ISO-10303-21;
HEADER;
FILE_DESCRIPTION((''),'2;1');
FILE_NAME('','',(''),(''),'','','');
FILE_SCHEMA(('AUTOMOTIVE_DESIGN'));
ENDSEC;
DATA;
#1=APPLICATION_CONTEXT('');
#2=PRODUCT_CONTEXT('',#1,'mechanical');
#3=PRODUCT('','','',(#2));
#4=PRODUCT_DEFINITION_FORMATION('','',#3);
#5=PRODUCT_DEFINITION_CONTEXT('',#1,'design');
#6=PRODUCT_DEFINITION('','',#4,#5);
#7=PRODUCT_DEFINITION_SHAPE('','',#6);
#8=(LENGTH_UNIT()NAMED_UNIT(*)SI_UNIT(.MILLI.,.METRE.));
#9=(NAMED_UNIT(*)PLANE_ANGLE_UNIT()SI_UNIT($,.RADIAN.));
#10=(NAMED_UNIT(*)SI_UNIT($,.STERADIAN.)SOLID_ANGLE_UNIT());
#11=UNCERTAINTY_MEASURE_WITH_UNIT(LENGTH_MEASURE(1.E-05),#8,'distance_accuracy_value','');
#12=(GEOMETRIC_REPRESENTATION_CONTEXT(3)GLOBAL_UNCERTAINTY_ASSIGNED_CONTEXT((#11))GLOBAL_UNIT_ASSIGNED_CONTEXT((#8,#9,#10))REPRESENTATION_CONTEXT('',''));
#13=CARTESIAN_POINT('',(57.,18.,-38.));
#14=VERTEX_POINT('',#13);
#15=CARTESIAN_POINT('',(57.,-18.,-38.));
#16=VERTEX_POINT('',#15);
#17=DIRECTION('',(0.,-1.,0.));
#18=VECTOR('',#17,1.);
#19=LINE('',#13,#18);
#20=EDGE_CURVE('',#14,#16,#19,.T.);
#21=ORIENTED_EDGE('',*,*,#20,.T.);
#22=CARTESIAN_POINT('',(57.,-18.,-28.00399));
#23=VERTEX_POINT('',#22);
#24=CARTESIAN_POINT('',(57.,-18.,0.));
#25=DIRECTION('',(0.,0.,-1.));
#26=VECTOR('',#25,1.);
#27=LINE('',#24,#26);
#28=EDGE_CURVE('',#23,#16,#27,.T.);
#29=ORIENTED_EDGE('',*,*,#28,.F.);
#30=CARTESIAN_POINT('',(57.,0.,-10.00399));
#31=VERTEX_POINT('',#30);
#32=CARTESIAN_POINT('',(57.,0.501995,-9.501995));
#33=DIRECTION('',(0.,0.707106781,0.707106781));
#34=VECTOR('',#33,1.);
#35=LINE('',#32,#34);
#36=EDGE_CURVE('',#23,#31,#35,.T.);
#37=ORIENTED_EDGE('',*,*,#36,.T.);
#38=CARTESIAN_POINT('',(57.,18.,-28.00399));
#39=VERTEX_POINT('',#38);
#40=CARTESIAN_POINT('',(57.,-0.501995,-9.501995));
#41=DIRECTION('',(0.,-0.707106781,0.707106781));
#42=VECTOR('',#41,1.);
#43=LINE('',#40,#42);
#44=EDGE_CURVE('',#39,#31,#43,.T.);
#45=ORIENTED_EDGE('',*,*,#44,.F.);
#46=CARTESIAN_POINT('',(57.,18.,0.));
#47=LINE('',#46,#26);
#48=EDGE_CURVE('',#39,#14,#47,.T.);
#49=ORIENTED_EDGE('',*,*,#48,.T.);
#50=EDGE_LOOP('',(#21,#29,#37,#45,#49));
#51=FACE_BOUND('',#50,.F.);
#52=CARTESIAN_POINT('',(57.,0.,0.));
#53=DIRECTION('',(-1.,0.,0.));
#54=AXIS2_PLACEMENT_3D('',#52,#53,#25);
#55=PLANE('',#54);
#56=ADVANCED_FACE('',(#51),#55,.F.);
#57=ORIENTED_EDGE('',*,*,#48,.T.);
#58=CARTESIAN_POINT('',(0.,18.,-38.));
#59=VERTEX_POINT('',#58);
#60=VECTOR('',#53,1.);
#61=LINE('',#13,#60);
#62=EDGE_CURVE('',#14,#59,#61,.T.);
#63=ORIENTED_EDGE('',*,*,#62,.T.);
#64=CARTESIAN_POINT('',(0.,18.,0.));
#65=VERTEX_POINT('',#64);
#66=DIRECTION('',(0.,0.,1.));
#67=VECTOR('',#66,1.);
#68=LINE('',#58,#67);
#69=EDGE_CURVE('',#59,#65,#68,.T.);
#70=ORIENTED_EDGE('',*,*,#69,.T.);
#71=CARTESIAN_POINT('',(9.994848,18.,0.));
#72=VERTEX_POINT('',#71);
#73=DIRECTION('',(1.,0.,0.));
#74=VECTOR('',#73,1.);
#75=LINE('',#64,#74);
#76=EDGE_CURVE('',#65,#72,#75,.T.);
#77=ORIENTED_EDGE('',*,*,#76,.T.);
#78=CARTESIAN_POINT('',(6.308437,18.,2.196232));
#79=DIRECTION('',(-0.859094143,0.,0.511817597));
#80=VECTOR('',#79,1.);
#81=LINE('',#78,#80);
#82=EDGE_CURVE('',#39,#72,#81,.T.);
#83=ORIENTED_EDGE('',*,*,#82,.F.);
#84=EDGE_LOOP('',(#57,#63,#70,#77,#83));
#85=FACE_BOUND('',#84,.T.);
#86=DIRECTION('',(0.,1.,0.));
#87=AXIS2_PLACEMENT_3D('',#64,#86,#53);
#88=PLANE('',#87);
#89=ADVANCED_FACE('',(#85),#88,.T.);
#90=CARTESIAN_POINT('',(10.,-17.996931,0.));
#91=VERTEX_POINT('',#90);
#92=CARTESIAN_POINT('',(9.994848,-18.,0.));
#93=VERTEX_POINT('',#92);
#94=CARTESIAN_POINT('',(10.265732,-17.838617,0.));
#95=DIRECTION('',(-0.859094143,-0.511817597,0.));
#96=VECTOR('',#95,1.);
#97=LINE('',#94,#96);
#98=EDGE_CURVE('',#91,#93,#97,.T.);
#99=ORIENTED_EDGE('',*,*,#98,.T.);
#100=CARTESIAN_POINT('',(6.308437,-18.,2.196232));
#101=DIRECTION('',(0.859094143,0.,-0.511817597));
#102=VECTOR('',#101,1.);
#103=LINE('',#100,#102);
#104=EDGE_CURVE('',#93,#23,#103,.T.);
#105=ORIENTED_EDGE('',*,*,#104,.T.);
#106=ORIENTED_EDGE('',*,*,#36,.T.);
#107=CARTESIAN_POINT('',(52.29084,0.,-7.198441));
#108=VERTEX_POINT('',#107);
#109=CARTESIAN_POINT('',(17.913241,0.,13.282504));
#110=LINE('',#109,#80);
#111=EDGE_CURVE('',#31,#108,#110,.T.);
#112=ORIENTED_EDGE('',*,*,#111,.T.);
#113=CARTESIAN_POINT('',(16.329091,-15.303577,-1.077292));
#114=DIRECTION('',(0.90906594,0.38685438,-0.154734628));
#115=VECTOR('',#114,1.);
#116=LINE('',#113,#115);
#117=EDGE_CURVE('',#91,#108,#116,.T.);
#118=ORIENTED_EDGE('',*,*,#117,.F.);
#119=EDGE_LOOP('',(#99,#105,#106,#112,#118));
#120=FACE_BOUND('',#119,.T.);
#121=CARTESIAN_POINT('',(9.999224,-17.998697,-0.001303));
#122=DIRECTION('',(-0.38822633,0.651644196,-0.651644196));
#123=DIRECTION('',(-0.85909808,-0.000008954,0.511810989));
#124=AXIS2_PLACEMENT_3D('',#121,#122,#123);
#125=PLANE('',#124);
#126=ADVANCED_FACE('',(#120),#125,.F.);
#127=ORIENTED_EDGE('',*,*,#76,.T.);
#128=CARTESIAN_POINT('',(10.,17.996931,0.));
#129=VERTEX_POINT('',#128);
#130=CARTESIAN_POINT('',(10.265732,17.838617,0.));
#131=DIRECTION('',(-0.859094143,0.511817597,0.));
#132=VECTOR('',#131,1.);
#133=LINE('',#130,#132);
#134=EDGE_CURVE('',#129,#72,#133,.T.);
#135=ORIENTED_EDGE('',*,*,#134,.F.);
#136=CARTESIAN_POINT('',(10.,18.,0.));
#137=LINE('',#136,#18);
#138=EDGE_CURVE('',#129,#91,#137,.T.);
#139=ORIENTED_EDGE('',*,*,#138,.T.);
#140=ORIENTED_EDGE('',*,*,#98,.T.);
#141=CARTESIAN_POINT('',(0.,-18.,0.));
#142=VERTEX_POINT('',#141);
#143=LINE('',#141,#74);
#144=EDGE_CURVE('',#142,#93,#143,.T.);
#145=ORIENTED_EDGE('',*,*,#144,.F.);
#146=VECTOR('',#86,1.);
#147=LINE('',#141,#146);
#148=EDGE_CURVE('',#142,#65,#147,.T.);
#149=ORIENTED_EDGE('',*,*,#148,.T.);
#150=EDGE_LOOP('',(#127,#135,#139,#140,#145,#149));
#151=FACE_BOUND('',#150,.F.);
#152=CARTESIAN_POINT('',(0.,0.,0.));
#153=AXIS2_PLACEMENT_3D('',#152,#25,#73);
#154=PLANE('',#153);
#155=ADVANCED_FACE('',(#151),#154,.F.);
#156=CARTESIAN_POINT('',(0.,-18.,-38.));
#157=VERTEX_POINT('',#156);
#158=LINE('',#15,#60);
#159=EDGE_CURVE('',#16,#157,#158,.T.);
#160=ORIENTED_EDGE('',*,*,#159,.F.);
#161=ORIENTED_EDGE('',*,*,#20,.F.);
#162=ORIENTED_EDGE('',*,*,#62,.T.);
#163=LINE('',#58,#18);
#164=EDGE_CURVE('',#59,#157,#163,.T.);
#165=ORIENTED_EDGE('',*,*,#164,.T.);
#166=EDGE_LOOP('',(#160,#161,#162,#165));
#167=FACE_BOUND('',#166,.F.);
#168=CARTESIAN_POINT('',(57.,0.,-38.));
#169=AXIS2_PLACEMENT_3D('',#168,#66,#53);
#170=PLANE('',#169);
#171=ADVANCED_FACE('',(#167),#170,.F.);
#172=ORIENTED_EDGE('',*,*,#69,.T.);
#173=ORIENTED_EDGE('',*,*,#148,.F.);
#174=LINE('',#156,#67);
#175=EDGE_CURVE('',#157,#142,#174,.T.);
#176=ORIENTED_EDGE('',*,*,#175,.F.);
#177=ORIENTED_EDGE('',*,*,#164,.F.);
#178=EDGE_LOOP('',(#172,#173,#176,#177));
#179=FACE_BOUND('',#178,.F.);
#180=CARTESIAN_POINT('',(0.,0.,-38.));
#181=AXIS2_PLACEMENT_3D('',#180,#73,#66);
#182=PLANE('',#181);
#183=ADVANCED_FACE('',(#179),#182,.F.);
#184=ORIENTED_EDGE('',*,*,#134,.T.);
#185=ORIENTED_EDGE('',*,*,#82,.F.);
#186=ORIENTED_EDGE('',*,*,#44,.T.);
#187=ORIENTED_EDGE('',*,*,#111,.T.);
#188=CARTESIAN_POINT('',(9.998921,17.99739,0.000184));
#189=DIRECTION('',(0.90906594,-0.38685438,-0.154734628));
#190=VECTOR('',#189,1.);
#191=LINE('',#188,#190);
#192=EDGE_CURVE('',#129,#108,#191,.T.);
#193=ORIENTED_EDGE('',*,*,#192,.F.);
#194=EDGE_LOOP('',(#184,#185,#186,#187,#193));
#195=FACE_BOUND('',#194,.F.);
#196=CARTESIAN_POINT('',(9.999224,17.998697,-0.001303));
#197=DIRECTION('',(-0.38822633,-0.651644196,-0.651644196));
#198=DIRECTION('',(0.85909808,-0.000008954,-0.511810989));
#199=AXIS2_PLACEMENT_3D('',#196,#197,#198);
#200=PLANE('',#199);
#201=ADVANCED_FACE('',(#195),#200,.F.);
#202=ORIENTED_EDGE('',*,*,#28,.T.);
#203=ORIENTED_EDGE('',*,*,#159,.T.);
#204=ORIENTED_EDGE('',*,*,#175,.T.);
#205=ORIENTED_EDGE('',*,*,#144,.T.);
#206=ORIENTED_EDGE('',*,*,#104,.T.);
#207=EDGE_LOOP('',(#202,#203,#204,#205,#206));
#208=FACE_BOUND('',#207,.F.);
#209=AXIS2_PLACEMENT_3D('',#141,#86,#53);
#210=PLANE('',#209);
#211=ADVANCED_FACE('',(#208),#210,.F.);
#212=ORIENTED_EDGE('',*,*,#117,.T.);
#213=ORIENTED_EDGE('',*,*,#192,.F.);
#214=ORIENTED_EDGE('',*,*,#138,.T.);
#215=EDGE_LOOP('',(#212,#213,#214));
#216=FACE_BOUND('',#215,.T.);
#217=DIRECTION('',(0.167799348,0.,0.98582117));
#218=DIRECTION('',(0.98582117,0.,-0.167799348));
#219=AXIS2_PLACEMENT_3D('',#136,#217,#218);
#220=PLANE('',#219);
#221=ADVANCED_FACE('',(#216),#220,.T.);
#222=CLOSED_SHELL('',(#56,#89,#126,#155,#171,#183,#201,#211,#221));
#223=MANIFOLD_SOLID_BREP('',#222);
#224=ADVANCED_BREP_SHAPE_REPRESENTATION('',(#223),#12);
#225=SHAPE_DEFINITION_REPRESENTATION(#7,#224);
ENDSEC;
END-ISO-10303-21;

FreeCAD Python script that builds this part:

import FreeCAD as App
import Part
import Sketcher


def add_polygon(sketch, points):
    """Adds a closed chain of lines whose ends are joined by coincident constraints."""
    first, n = sketch.GeometryCount, len(points)
    for a, b in zip(points, points[1:] + points[:1]):
        sketch.addGeometry(Part.LineSegment(App.Vector(*a, 0), App.Vector(*b, 0)), False)
    for i in range(n):
        sketch.addConstraint(Sketcher.Constraint("Coincident", first + i, 2, first + (i + 1) % n, 1))

doc = App.newDocument("Part")
body = doc.addObject("PartDesign::Body", "Body")

# Sketch on XZ plane
sketch1 = doc.addObject("Sketcher::SketchObject", "Sketch")
body.addObject(sketch1)
sketch1.AttachmentSupport = (doc.XZ_Plane, [""])
sketch1.MapMode = "FlatFace"
add_polygon(sketch1, [(0, -38), (0, 0), (57, 0), (57, -38)])  # lines 0-3
sketch1.addConstraint([
    Sketcher.Constraint("Vertical", 0),
    Sketcher.Constraint("Horizontal", 1),
    Sketcher.Constraint("Vertical", 2),
    Sketcher.Constraint("Horizontal", 3),
    Sketcher.Constraint("Coincident", 0, 2, -1, 1),
    Sketcher.Constraint("DistanceX", 1, 1, 1, 2, 57.0),
    Sketcher.Constraint("DistanceY", 0, 1, 0, 2, 38.0),
])
pad1 = doc.addObject("PartDesign::Pad", "Pad")
body.addObject(pad1)
pad1.Profile = sketch1
pad1.Length = 36
pad1.Midplane = True

# Sketch on XZ plane
sketch2 = doc.addObject("Sketcher::SketchObject", "Sketch001")
body.addObject(sketch2)
sketch2.AttachmentSupport = (doc.XZ_Plane, [""])
sketch2.MapMode = "FlatFace"
sketch2.AttachmentOffset = App.Placement(App.Vector(0, 0, -18), App.Rotation())
add_polygon(sketch2, [(57, -8), (10, 0), (57, 0)])  # lines 0-2
sketch2.addConstraint([
    Sketcher.Constraint("Horizontal", 1),
    Sketcher.Constraint("Vertical", 2),
    Sketcher.Constraint("PointOnObject", 0, 2, -1),
    Sketcher.Constraint("DistanceX", -1, 1, 0, 2, 10.0),
    Sketcher.Constraint("DistanceX", 1, 1, 1, 2, 47.0),
    Sketcher.Constraint("DistanceY", 2, 2, 2, 1, 8.0),
])
pocket1 = doc.addObject("PartDesign::Pocket", "Pocket")
body.addObject(pocket1)
pocket1.Profile = sketch2
pocket1.Length = 40
pocket1.Reversed = True

# Sketch on an angled plane
sketch3 = doc.addObject("Sketcher::SketchObject", "Sketch002")
body.addObject(sketch3)
sketch3.Placement = App.Placement(App.Vector(10, 18, 0), App.Rotation(App.Vector(0.85909808, -0.000008954, -0.511810989), App.Vector(0.333512826, -0.75852478, 0.559829754), App.Vector(-0.38822633, -0.651644196, -0.651644196), "ZXY"))
add_polygon(sketch3, [(-15, 29), (-15, -12), (94, -12), (94, 29)])  # lines 0-3
sketch3.addConstraint([
    Sketcher.Constraint("Vertical", 0),
    Sketcher.Constraint("Horizontal", 1),
    Sketcher.Constraint("Vertical", 2),
    Sketcher.Constraint("Horizontal", 3),
    Sketcher.Constraint("DistanceX", 1, 1, 1, 2, 108.8713),
    Sketcher.Constraint("DistanceY", 0, 2, 0, 1, 41.1384),
    Sketcher.Constraint("DistanceX", -1, 1, 1, 2, 93.717),
    Sketcher.Constraint("DistanceY", 0, 2, -1, 1, 12.3218),
])
pocket2 = doc.addObject("PartDesign::Pocket", "Pocket001")
body.addObject(pocket2)
pocket2.Profile = sketch3
pocket2.Length = 40
doc.recompute()

mirrored = doc.addObject("PartDesign::Mirrored", "Mirrored")
body.addObject(mirrored)
mirrored.Originals = [pocket2]
mirrored.MirrorPlane = (doc.XZ_Plane, [""])
body.Tip = mirrored

doc.recompute()
